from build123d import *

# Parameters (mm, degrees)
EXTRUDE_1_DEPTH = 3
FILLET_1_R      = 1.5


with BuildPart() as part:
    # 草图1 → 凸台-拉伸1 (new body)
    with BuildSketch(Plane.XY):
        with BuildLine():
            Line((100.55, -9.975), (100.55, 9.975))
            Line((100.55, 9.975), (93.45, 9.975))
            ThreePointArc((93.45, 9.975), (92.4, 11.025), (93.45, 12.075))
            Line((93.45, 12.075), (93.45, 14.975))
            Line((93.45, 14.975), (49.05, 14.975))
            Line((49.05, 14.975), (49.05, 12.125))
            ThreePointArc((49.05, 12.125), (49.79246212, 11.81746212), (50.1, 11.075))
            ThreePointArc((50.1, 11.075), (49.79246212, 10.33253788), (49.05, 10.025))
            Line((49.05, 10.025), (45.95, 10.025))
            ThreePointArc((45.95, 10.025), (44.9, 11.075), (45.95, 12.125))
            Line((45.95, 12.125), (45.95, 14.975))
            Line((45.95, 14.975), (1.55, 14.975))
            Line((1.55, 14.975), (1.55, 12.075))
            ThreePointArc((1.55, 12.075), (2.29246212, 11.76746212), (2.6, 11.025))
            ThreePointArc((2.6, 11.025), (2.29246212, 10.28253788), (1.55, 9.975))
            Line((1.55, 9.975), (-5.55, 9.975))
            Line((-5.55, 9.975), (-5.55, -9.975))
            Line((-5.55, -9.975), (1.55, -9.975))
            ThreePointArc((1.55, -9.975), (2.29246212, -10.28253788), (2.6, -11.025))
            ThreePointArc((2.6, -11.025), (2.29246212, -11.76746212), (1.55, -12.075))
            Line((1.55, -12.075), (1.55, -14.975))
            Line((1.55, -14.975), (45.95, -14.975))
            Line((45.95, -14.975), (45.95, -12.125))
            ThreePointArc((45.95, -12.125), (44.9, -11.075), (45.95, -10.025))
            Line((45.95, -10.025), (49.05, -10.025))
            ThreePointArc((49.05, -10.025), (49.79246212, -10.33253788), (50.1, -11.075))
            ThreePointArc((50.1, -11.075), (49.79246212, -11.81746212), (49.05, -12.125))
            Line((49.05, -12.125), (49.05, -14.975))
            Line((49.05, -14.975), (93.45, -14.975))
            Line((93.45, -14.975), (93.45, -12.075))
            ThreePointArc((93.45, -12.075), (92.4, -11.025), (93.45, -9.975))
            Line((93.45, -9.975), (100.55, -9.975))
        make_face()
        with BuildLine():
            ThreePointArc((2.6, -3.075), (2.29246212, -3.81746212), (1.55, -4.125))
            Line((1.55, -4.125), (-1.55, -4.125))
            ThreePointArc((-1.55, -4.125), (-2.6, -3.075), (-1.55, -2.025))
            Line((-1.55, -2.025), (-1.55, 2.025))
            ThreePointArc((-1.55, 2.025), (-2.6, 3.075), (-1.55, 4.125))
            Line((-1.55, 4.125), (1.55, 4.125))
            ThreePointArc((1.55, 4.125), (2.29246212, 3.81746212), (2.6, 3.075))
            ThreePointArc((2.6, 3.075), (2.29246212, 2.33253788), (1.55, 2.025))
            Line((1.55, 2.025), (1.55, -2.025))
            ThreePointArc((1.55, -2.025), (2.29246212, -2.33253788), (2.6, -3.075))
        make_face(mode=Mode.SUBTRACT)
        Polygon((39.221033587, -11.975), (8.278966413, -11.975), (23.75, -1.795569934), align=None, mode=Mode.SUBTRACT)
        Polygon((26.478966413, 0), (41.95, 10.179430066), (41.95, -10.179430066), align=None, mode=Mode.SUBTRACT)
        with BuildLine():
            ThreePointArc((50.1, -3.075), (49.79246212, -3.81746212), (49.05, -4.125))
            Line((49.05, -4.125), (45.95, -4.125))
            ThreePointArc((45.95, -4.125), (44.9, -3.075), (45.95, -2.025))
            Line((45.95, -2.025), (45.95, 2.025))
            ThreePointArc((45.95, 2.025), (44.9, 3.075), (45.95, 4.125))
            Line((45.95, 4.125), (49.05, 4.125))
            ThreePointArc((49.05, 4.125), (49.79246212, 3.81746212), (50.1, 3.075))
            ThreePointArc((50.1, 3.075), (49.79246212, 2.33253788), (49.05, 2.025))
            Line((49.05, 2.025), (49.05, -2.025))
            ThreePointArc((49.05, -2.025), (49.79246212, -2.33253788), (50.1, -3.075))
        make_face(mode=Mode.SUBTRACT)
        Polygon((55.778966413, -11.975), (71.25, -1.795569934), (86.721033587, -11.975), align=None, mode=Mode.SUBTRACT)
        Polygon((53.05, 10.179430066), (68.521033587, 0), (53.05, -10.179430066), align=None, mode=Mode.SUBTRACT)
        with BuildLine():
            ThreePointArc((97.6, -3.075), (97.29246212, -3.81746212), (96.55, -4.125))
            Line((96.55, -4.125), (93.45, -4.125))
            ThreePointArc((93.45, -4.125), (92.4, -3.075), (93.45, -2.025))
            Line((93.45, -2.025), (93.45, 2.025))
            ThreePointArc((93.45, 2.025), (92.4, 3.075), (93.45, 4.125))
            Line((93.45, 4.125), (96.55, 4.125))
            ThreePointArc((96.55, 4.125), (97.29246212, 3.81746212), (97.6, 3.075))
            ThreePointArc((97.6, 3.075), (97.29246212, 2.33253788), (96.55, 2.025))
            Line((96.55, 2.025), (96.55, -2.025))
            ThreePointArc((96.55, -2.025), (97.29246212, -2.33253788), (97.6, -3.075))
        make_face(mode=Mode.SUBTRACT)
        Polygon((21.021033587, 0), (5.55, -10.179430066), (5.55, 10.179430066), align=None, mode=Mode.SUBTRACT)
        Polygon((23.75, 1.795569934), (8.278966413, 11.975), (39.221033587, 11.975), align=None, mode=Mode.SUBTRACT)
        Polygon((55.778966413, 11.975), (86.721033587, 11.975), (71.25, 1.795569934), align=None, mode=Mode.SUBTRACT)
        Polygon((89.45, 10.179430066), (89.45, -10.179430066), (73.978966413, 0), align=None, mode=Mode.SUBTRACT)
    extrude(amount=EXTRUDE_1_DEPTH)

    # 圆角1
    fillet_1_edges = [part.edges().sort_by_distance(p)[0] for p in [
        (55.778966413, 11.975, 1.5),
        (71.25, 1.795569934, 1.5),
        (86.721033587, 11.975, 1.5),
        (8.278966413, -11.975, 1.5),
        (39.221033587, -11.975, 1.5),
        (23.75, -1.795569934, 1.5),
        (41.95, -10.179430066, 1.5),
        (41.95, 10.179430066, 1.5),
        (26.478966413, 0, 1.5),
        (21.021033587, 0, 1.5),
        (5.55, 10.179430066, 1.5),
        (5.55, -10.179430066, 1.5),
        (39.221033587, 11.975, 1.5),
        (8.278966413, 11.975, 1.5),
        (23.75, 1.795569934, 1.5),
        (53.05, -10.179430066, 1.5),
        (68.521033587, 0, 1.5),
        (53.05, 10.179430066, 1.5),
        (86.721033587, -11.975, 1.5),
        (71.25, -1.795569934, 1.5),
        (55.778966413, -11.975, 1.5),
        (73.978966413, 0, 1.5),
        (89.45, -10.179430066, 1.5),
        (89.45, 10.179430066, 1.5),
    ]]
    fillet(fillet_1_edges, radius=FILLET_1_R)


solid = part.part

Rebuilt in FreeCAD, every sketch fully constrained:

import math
import FreeCAD as App
import Part
import Sketcher
from FreeCAD import Vector


def edges_at(feature, points):
    """Names of the edges that pass closest to the given points."""
    edges = feature.Shape.Edges
    near = lambda p: min(range(len(edges)), key=lambda i: edges[i].distToShape(Part.Vertex(*p))[0])
    return sorted({f"Edge{near(p) + 1}" for p in points})

doc = App.newDocument("Part")
body = doc.addObject("PartDesign::Body", "Body")

sketch1 = body.newObject("Sketcher::SketchObject", "Sketch")
sketch1.AttachmentSupport = (doc.getObject("XY_Plane"), [""])
sketch1.MapMode = "FlatFace"
sketch1.addGeometry(Part.LineSegment(Vector(100.5, -10, 0), Vector(100.5, 10, 0)), False)
sketch1.addGeometry(Part.LineSegment(Vector(100.5, 10, 0), Vector(93.5, 10, 0)), False)
sketch1.addGeometry(Part.ArcOfCircle(Part.Circle(Vector(93.5, 11, 0), Vector(0, 0, 1), 1.1), math.radians(90), math.radians(270)), False)
sketch1.addGeometry(Part.LineSegment(Vector(93.5, 12.1, 0), Vector(93.5, 15, 0)), False)
sketch1.addGeometry(Part.LineSegment(Vector(93.5, 15, 0), Vector(49, 15, 0)), False)
sketch1.addGeometry(Part.LineSegment(Vector(49, 15, 0), Vector(49, 12.1, 0)), False)
sketch1.addGeometry(Part.ArcOfCircle(Part.Circle(Vector(49, 11.1, 0), Vector(0, 0, 1), 1.1), math.radians(0), math.radians(90)), False)
sketch1.addGeometry(Part.ArcOfCircle(Part.Circle(Vector(49, 11.1, 0), Vector(0, 0, 1), 1.1), math.radians(-90), math.radians(0)), False)
sketch1.addGeometry(Part.LineSegment(Vector(49, 10, 0), Vector(46, 10, 0)), False)
sketch1.addGeometry(Part.ArcOfCircle(Part.Circle(Vector(46, 11.1, 0), Vector(0, 0, 1), 1.1), math.radians(90), math.radians(270)), False)
sketch1.addGeometry(Part.LineSegment(Vector(46, 12.1, 0), Vector(46, 15, 0)), False)
sketch1.addGeometry(Part.LineSegment(Vector(46, 15, 0), Vector(1.6, 15, 0)), False)
sketch1.addGeometry(Part.LineSegment(Vector(1.6, 15, 0), Vector(1.6, 12.1, 0)), False)
sketch1.addGeometry(Part.ArcOfCircle(Part.Circle(Vector(1.5, 11, 0), Vector(0, 0, 1), 1.1), math.radians(0), math.radians(90)), False)
sketch1.addGeometry(Part.ArcOfCircle(Part.Circle(Vector(1.5, 11, 0), Vector(0, 0, 1), 1.1), math.radians(-90), math.radians(0)), False)
sketch1.addGeometry(Part.LineSegment(Vector(1.6, 10, 0), Vector(-5.5, 10, 0)), False)
sketch1.addGeometry(Part.LineSegment(Vector(-5.5, 10, 0), Vector(-5.5, -10, 0)), False)
sketch1.addGeometry(Part.LineSegment(Vector(-5.5, -10, 0), Vector(1.6, -10, 0)), False)
sketch1.addGeometry(Part.ArcOfCircle(Part.Circle(Vector(1.5, -11, 0), Vector(0, 0, 1), 1.1), math.radians(0), math.radians(90)), False)
sketch1.addGeometry(Part.ArcOfCircle(Part.Circle(Vector(1.5, -11, 0), Vector(0, 0, 1), 1.1), math.radians(-90), math.radians(0)), False)
sketch1.addGeometry(Part.LineSegment(Vector(1.6, -12.1, 0), Vector(1.6, -15, 0)), False)
sketch1.addGeometry(Part.LineSegment(Vector(1.6, -15, 0), Vector(46, -15, 0)), False)
sketch1.addGeometry(Part.LineSegment(Vector(46, -15, 0), Vector(46, -12.1, 0)), False)
sketch1.addGeometry(Part.ArcOfCircle(Part.Circle(Vector(46, -11.1, 0), Vector(0, 0, 1), 1.1), math.radians(90), math.radians(270)), False)
sketch1.addGeometry(Part.LineSegment(Vector(46, -10, 0), Vector(49, -10, 0)), False)
sketch1.addGeometry(Part.ArcOfCircle(Part.Circle(Vector(49, -11.1, 0), Vector(0, 0, 1), 1.1), math.radians(0), math.radians(90)), False)
sketch1.addGeometry(Part.ArcOfCircle(Part.Circle(Vector(49, -11.1, 0), Vector(0, 0, 1), 1.1), math.radians(-90), math.radians(0)), False)
sketch1.addGeometry(Part.LineSegment(Vector(49, -12.1, 0), Vector(49, -15, 0)), False)
sketch1.addGeometry(Part.LineSegment(Vector(49, -15, 0), Vector(93.5, -15, 0)), False)
sketch1.addGeometry(Part.LineSegment(Vector(93.5, -15, 0), Vector(93.5, -12.1, 0)), False)
sketch1.addGeometry(Part.ArcOfCircle(Part.Circle(Vector(93.5, -11, 0), Vector(0, 0, 1), 1.1), math.radians(90), math.radians(270)), False)
sketch1.addGeometry(Part.LineSegment(Vector(93.5, -10, 0), Vector(100.5, -10, 0)), False)
sketch1.addGeometry(Part.LineSegment(Vector(23.8, -1.8, 0), Vector(39.2, -12, 0)), False)
sketch1.addGeometry(Part.LineSegment(Vector(39.2, -12, 0), Vector(8.3, -12, 0)), False)
sketch1.addGeometry(Part.LineSegment(Vector(8.3, -12, 0), Vector(23.8, -1.8, 0)), False)
sketch1.addGeometry(Part.ArcOfCircle(Part.Circle(Vector(1.5, -3.1, 0), Vector(0, 0, 1), 1.1), math.radians(0), math.radians(90)), False)
sketch1.addGeometry(Part.ArcOfCircle(Part.Circle(Vector(1.5, -3.1, 0), Vector(0, 0, 1), 1.1), math.radians(-90), math.radians(0)), False)
sketch1.addGeometry(Part.LineSegment(Vector(1.6, -4.1, 0), Vector(-1.6, -4.1, 0)), False)
sketch1.addGeometry(Part.ArcOfCircle(Part.Circle(Vector(-1.6, -3.1, 0), Vector(0, 0, 1), 1.1), math.radians(90), math.radians(270)), False)
sketch1.addGeometry(Part.LineSegment(Vector(-1.6, -2, 0), Vector(-1.6, 2, 0)), False)
sketch1.addGeometry(Part.ArcOfCircle(Part.Circle(Vector(-1.6, 3.1, 0), Vector(0, 0, 1), 1.1), math.radians(90), math.radians(270)), False)
sketch1.addGeometry(Part.LineSegment(Vector(-1.6, 4.1, 0), Vector(1.6, 4.1, 0)), False)
sketch1.addGeometry(Part.ArcOfCircle(Part.Circle(Vector(1.5, 3.1, 0), Vector(0, 0, 1), 1.1), math.radians(0), math.radians(90)), False)
sketch1.addGeometry(Part.ArcOfCircle(Part.Circle(Vector(1.5, 3.1, 0), Vector(0, 0, 1), 1.1), math.radians(-90), math.radians(0)), False)
sketch1.addGeometry(Part.LineSegment(Vector(1.6, 2, 0), Vector(1.6, -2, 0)), False)
sketch1.addGeometry(Part.LineSegment(Vector(5.5, 10.2, 0), Vector(21, 0, 0)), False)
sketch1.addGeometry(Part.LineSegment(Vector(21, 0, 0), Vector(5.5, -10.2, 0)), False)
sketch1.addGeometry(Part.LineSegment(Vector(5.5, -10.2, 0), Vector(5.5, 10.2, 0)), False)
sketch1.addGeometry(Part.LineSegment(Vector(42, -10.2, 0), Vector(26.5, 0, 0)), False)
sketch1.addGeometry(Part.LineSegment(Vector(26.5, 0, 0), Vector(42, 10.2, 0)), False)
sketch1.addGeometry(Part.LineSegment(Vector(42, 10.2, 0), Vector(42, -10.2, 0)), False)
sketch1.addGeometry(Part.LineSegment(Vector(86.7, -12, 0), Vector(55.8, -12, 0)), False)
sketch1.addGeometry(Part.LineSegment(Vector(55.8, -12, 0), Vector(71.2, -1.8, 0)), False)
sketch1.addGeometry(Part.LineSegment(Vector(71.2, -1.8, 0), Vector(86.7, -12, 0)), False)
sketch1.addGeometry(Part.ArcOfCircle(Part.Circle(Vector(49, -3.1, 0), Vector(0, 0, 1), 1.1), math.radians(0), math.radians(90)), False)
sketch1.addGeometry(Part.ArcOfCircle(Part.Circle(Vector(49, -3.1, 0), Vector(0, 0, 1), 1.1), math.radians(-90), math.radians(0)), False)
sketch1.addGeometry(Part.LineSegment(Vector(49, -4.1, 0), Vector(46, -4.1, 0)), False)
sketch1.addGeometry(Part.ArcOfCircle(Part.Circle(Vector(46, -3.1, 0), Vector(0, 0, 1), 1.1), math.radians(90), math.radians(270)), False)
sketch1.addGeometry(Part.LineSegment(Vector(46, -2, 0), Vector(46, 2, 0)), False)
sketch1.addGeometry(Part.ArcOfCircle(Part.Circle(Vector(46, 3.1, 0), Vector(0, 0, 1), 1.1), math.radians(90), math.radians(270)), False)
sketch1.addGeometry(Part.LineSegment(Vector(46, 4.1, 0), Vector(49, 4.1, 0)), False)
sketch1.addGeometry(Part.ArcOfCircle(Part.Circle(Vector(49, 3.1, 0), Vector(0, 0, 1), 1.1), math.radians(0), math.radians(90)), False)
sketch1.addGeometry(Part.ArcOfCircle(Part.Circle(Vector(49, 3.1, 0), Vector(0, 0, 1), 1.1), math.radians(-90), math.radians(0)), False)
sketch1.addGeometry(Part.LineSegment(Vector(49, 2, 0), Vector(49, -2, 0)), False)
sketch1.addGeometry(Part.LineSegment(Vector(53, -10.2, 0), Vector(53, 10.2, 0)), False)
sketch1.addGeometry(Part.LineSegment(Vector(53, 10.2, 0), Vector(68.5, 0, 0)), False)
sketch1.addGeometry(Part.LineSegment(Vector(68.5, 0, 0), Vector(53, -10.2, 0)), False)
sketch1.addGeometry(Part.LineSegment(Vector(74, 0, 0), Vector(89.5, 10.2, 0)), False)
sketch1.addGeometry(Part.LineSegment(Vector(89.5, 10.2, 0), Vector(89.5, -10.2, 0)), False)
sketch1.addGeometry(Part.LineSegment(Vector(89.5, -10.2, 0), Vector(74, 0, 0)), False)
sketch1.addGeometry(Part.ArcOfCircle(Part.Circle(Vector(96.5, -3.1, 0), Vector(0, 0, 1), 1.1), math.radians(0), math.radians(90)), False)
sketch1.addGeometry(Part.ArcOfCircle(Part.Circle(Vector(96.5, -3.1, 0), Vector(0, 0, 1), 1.1), math.radians(-90), math.radians(0)), False)
sketch1.addGeometry(Part.LineSegment(Vector(96.5, -4.1, 0), Vector(93.5, -4.1, 0)), False)
sketch1.addGeometry(Part.ArcOfCircle(Part.Circle(Vector(93.5, -3.1, 0), Vector(0, 0, 1), 1.1), math.radians(90), math.radians(270)), False)
sketch1.addGeometry(Part.LineSegment(Vector(93.5, -2, 0), Vector(93.5, 2, 0)), False)
sketch1.addGeometry(Part.ArcOfCircle(Part.Circle(Vector(93.5, 3.1, 0), Vector(0, 0, 1), 1.1), math.radians(90), math.radians(270)), False)
sketch1.addGeometry(Part.LineSegment(Vector(93.5, 4.1, 0), Vector(96.5, 4.1, 0)), False)
sketch1.addGeometry(Part.ArcOfCircle(Part.Circle(Vector(96.5, 3.1, 0), Vector(0, 0, 1), 1.1), math.radians(0), math.radians(90)), False)
sketch1.addGeometry(Part.ArcOfCircle(Part.Circle(Vector(96.5, 3.1, 0), Vector(0, 0, 1), 1.1), math.radians(-90), math.radians(0)), False)
sketch1.addGeometry(Part.LineSegment(Vector(96.5, 2, 0), Vector(96.5, -2, 0)), False)
sketch1.addGeometry(Part.LineSegment(Vector(39.2, 12, 0), Vector(23.8, 1.8, 0)), False)
sketch1.addGeometry(Part.LineSegment(Vector(23.8, 1.8, 0), Vector(8.3, 12, 0)), False)
sketch1.addGeometry(Part.LineSegment(Vector(8.3, 12, 0), Vector(39.2, 12, 0)), False)
sketch1.addGeometry(Part.LineSegment(Vector(71.2, 1.8, 0), Vector(55.8, 12, 0)), False)
sketch1.addGeometry(Part.LineSegment(Vector(55.8, 12, 0), Vector(86.7, 12, 0)), False)
sketch1.addGeometry(Part.LineSegment(Vector(86.7, 12, 0), Vector(71.2, 1.8, 0)), False)
sketch1.addConstraint(Sketcher.Constraint("Coincident", 0, 2, 1, 1))
sketch1.addConstraint(Sketcher.Constraint("Tangent", 1, 2, 2, 2))
sketch1.addConstraint(Sketcher.Constraint("Coincident", 2, 1, 3, 1))
sketch1.addConstraint(Sketcher.Constraint("Coincident", 3, 2, 4, 1))
sketch1.addConstraint(Sketcher.Constraint("Coincident", 4, 2, 5, 1))
sketch1.addConstraint(Sketcher.Constraint("Coincident", 5, 2, 6, 2))
sketch1.addConstraint(Sketcher.Constraint("Tangent", 6, 1, 7, 2))
sketch1.addConstraint(Sketcher.Constraint("Tangent", 7, 1, 8, 1))
sketch1.addConstraint(Sketcher.Constraint("Tangent", 8, 2, 9, 2))
sketch1.addConstraint(Sketcher.Constraint("Coincident", 9, 1, 10, 1))
sketch1.addConstraint(Sketcher.Constraint("Coincident", 10, 2, 11, 1))
sketch1.addConstraint(Sketcher.Constraint("Coincident", 11, 2, 12, 1))
sketch1.addConstraint(Sketcher.Constraint("Coincident", 12, 2, 13, 2))
sketch1.addConstraint(Sketcher.Constraint("Tangent", 13, 1, 14, 2))
sketch1.addConstraint(Sketcher.Constraint("Tangent", 14, 1, 15, 1))
sketch1.addConstraint(Sketcher.Constraint("Coincident", 15, 2, 16, 1))
sketch1.addConstraint(Sketcher.Constraint("Coincident", 16, 2, 17, 1))
sketch1.addConstraint(Sketcher.Constraint("Tangent", 17, 2, 18, 2))
sketch1.addConstraint(Sketcher.Constraint("Tangent", 18, 1, 19, 2))
sketch1.addConstraint(Sketcher.Constraint("Coincident", 19, 1, 20, 1))
sketch1.addConstraint(Sketcher.Constraint("Coincident", 20, 2, 21, 1))
sketch1.addConstraint(Sketcher.Constraint("Coincident", 21, 2, 22, 1))
sketch1.addConstraint(Sketcher.Constraint("Coincident", 22, 2, 23, 2))
sketch1.addConstraint(Sketcher.Constraint("Tangent", 23, 1, 24, 1))
sketch1.addConstraint(Sketcher.Constraint("Tangent", 24, 2, 25, 2))
sketch1.addConstraint(Sketcher.Constraint("Tangent", 25, 1, 26, 2))
sketch1.addConstraint(Sketcher.Constraint("Coincident", 26, 1, 27, 1))
sketch1.addConstraint(Sketcher.Constraint("Coincident", 27, 2, 28, 1))
sketch1.addConstraint(Sketcher.Constraint("Coincident", 28, 2, 29, 1))
sketch1.addConstraint(Sketcher.Constraint("Coincident", 29, 2, 30, 2))
sketch1.addConstraint(Sketcher.Constraint("Tangent", 30, 1, 31, 1))
sketch1.addConstraint(Sketcher.Constraint("Coincident", 31, 2, 0, 1))
sketch1.addConstraint(Sketcher.Constraint("Coincident", 32, 2, 33, 1))
sketch1.addConstraint(Sketcher.Constraint("Coincident", 33, 2, 34, 1))
sketch1.addConstraint(Sketcher.Constraint("Coincident", 34, 2, 32, 1))
sketch1.addConstraint(Sketcher.Constraint("Tangent", 35, 1, 36, 2))
sketch1.addConstraint(Sketcher.Constraint("Tangent", 36, 1, 37, 1))
sketch1.addConstraint(Sketcher.Constraint("Tangent", 37, 2, 38, 2))
sketch1.addConstraint(Sketcher.Constraint("Coincident", 38, 1, 39, 1))
sketch1.addConstraint(Sketcher.Constraint("Coincident", 39, 2, 40, 2))
sketch1.addConstraint(Sketcher.Constraint("Tangent", 40, 1, 41, 1))
sketch1.addConstraint(Sketcher.Constraint("Tangent", 41, 2, 42, 2))
sketch1.addConstraint(Sketcher.Constraint("Tangent", 42, 1, 43, 2))
sketch1.addConstraint(Sketcher.Constraint("Coincident", 43, 1, 44, 1))
sketch1.addConstraint(Sketcher.Constraint("Coincident", 44, 2, 35, 2))
sketch1.addConstraint(Sketcher.Constraint("Coincident", 45, 2, 46, 1))
sketch1.addConstraint(Sketcher.Constraint("Coincident", 46, 2, 47, 1))
sketch1.addConstraint(Sketcher.Constraint("Coincident", 47, 2, 45, 1))
sketch1.addConstraint(Sketcher.Constraint("Coincident", 48, 2, 49, 1))
sketch1.addConstraint(Sketcher.Constraint("Coincident", 49, 2, 50, 1))
sketch1.addConstraint(Sketcher.Constraint("Coincident", 50, 2, 48, 1))
sketch1.addConstraint(Sketcher.Constraint("Coincident", 51, 2, 52, 1))
sketch1.addConstraint(Sketcher.Constraint("Coincident", 52, 2, 53, 1))
sketch1.addConstraint(Sketcher.Constraint("Coincident", 53, 2, 51, 1))
sketch1.addConstraint(Sketcher.Constraint("Tangent", 54, 1, 55, 2))
sketch1.addConstraint(Sketcher.Constraint("Tangent", 55, 1, 56, 1))
sketch1.addConstraint(Sketcher.Constraint("Tangent", 56, 2, 57, 2))
sketch1.addConstraint(Sketcher.Constraint("Coincident", 57, 1, 58, 1))
sketch1.addConstraint(Sketcher.Constraint("Coincident", 58, 2, 59, 2))
sketch1.addConstraint(Sketcher.Constraint("Tangent", 59, 1, 60, 1))
sketch1.addConstraint(Sketcher.Constraint("Tangent", 60, 2, 61, 2))
sketch1.addConstraint(Sketcher.Constraint("Tangent", 61, 1, 62, 2))
sketch1.addConstraint(Sketcher.Constraint("Coincident", 62, 1, 63, 1))
sketch1.addConstraint(Sketcher.Constraint("Coincident", 63, 2, 54, 2))
sketch1.addConstraint(Sketcher.Constraint("Coincident", 64, 2, 65, 1))
sketch1.addConstraint(Sketcher.Constraint("Coincident", 65, 2, 66, 1))
sketch1.addConstraint(Sketcher.Constraint("Coincident", 66, 2, 64, 1))
sketch1.addConstraint(Sketcher.Constraint("Coincident", 67, 2, 68, 1))
sketch1.addConstraint(Sketcher.Constraint("Coincident", 68, 2, 69, 1))
sketch1.addConstraint(Sketcher.Constraint("Coincident", 69, 2, 67, 1))
sketch1.addConstraint(Sketcher.Constraint("Tangent", 70, 1, 71, 2))
sketch1.addConstraint(Sketcher.Constraint("Tangent", 71, 1, 72, 1))
sketch1.addConstraint(Sketcher.Constraint("Tangent", 72, 2, 73, 2))
sketch1.addConstraint(Sketcher.Constraint("Coincident", 73, 1, 74, 1))
sketch1.addConstraint(Sketcher.Constraint("Coincident", 74, 2, 75, 2))
sketch1.addConstraint(Sketcher.Constraint("Tangent", 75, 1, 76, 1))
sketch1.addConstraint(Sketcher.Constraint("Tangent", 76, 2, 77, 2))
sketch1.addConstraint(Sketcher.Constraint("Tangent", 77, 1, 78, 2))
sketch1.addConstraint(Sketcher.Constraint("Coincident", 78, 1, 79, 1))
sketch1.addConstraint(Sketcher.Constraint("Coincident", 79, 2, 70, 2))
sketch1.addConstraint(Sketcher.Constraint("Coincident", 80, 2, 81, 1))
sketch1.addConstraint(Sketcher.Constraint("Coincident", 81, 2, 82, 1))
sketch1.addConstraint(Sketcher.Constraint("Coincident", 82, 2, 80, 1))
sketch1.addConstraint(Sketcher.Constraint("Coincident", 83, 2, 84, 1))
sketch1.addConstraint(Sketcher.Constraint("Coincident", 84, 2, 85, 1))
sketch1.addConstraint(Sketcher.Constraint("Coincident", 85, 2, 83, 1))
sketch1.addConstraint(Sketcher.Constraint("Vertical", 0))
sketch1.addConstraint(Sketcher.Constraint("Horizontal", 1))
sketch1.addConstraint(Sketcher.Constraint("Vertical", 3))
sketch1.addConstraint(Sketcher.Constraint("Horizontal", 4))
sketch1.addConstraint(Sketcher.Constraint("Vertical", 5))
sketch1.addConstraint(Sketcher.Constraint("Horizontal", 8))
sketch1.addConstraint(Sketcher.Constraint("Vertical", 10))
sketch1.addConstraint(Sketcher.Constraint("Horizontal", 11))
sketch1.addConstraint(Sketcher.Constraint("Vertical", 12))
sketch1.addConstraint(Sketcher.Constraint("Horizontal", 15))
sketch1.addConstraint(Sketcher.Constraint("Vertical", 16))
sketch1.addConstraint(Sketcher.Constraint("Horizontal", 17))
sketch1.addConstraint(Sketcher.Constraint("Vertical", 20))
sketch1.addConstraint(Sketcher.Constraint("Horizontal", 21))
sketch1.addConstraint(Sketcher.Constraint("Vertical", 22))
sketch1.addConstraint(Sketcher.Constraint("Horizontal", 24))
sketch1.addConstraint(Sketcher.Constraint("Vertical", 27))
sketch1.addConstraint(Sketcher.Constraint("Horizontal", 28))
sketch1.addConstraint(Sketcher.Constraint("Vertical", 29))
sketch1.addConstraint(Sketcher.Constraint("Horizontal", 31))
sketch1.addConstraint(Sketcher.Constraint("Horizontal", 33))
sketch1.addConstraint(Sketcher.Constraint("Horizontal", 37))
sketch1.addConstraint(Sketcher.Constraint("Vertical", 39))
sketch1.addConstraint(Sketcher.Constraint("Horizontal", 41))
sketch1.addConstraint(Sketcher.Constraint("Vertical", 44))
sketch1.addConstraint(Sketcher.Constraint("Vertical", 47))
sketch1.addConstraint(Sketcher.Constraint("Vertical", 50))
sketch1.addConstraint(Sketcher.Constraint("Horizontal", 51))
sketch1.addConstraint(Sketcher.Constraint("Horizontal", 56))
sketch1.addConstraint(Sketcher.Constraint("Vertical", 58))
sketch1.addConstraint(Sketcher.Constraint("Horizontal", 60))
sketch1.addConstraint(Sketcher.Constraint("Vertical", 63))
sketch1.addConstraint(Sketcher.Constraint("Vertical", 64))
sketch1.addConstraint(Sketcher.Constraint("Vertical", 68))
sketch1.addConstraint(Sketcher.Constraint("Horizontal", 72))
sketch1.addConstraint(Sketcher.Constraint("Vertical", 74))
sketch1.addConstraint(Sketcher.Constraint("Horizontal", 76))
sketch1.addConstraint(Sketcher.Constraint("Vertical", 79))
sketch1.addConstraint(Sketcher.Constraint("Horizontal", 82))
sketch1.addConstraint(Sketcher.Constraint("Horizontal", 84))
sketch1.addConstraint(Sketcher.Constraint("Equal", 2, 6))
sketch1.addConstraint(Sketcher.Constraint("Equal", 6, 7))
sketch1.addConstraint(Sketcher.Constraint("Equal", 7, 9))
sketch1.addConstraint(Sketcher.Constraint("Equal", 9, 13))
sketch1.addConstraint(Sketcher.Constraint("Equal", 13, 14))
sketch1.addConstraint(Sketcher.Constraint("Equal", 14, 18))
sketch1.addConstraint(Sketcher.Constraint("Equal", 18, 19))
sketch1.addConstraint(Sketcher.Constraint("Equal", 19, 23))
sketch1.addConstraint(Sketcher.Constraint("Equal", 23, 25))
sketch1.addConstraint(Sketcher.Constraint("Equal", 25, 26))
sketch1.addConstraint(Sketcher.Constraint("Equal", 26, 30))
sketch1.addConstraint(Sketcher.Constraint("Equal", 30, 35))
sketch1.addConstraint(Sketcher.Constraint("Equal", 35, 36))
sketch1.addConstraint(Sketcher.Constraint("Equal", 36, 38))
sketch1.addConstraint(Sketcher.Constraint("Equal", 38, 40))
sketch1.addConstraint(Sketcher.Constraint("Equal", 40, 42))
sketch1.addConstraint(Sketcher.Constraint("Equal", 42, 43))
sketch1.addConstraint(Sketcher.Constraint("Equal", 43, 54))
sketch1.addConstraint(Sketcher.Constraint("Equal", 54, 55))
sketch1.addConstraint(Sketcher.Constraint("Equal", 55, 57))
sketch1.addConstraint(Sketcher.Constraint("Equal", 57, 59))
sketch1.addConstraint(Sketcher.Constraint("Equal", 59, 61))
sketch1.addConstraint(Sketcher.Constraint("Equal", 61, 62))
sketch1.addConstraint(Sketcher.Constraint("Equal", 62, 70))
sketch1.addConstraint(Sketcher.Constraint("Equal", 70, 71))
sketch1.addConstraint(Sketcher.Constraint("Equal", 71, 73))
sketch1.addConstraint(Sketcher.Constraint("Equal", 73, 75))
sketch1.addConstraint(Sketcher.Constraint("Equal", 75, 77))
sketch1.addConstraint(Sketcher.Constraint("Equal", 77, 78))
sketch1.addConstraint(Sketcher.Constraint("Symmetric", 35, 3, 40, 3, -1, 1))
sketch1.addConstraint(Sketcher.Constraint("Symmetric", 13, 3, 18, 3, -1))
sketch1.addConstraint(Sketcher.Constraint("Symmetric", 9, 3, 23, 3, -1))
sketch1.addConstraint(Sketcher.Constraint("Symmetric", 2, 3, 30, 3, -1))
sketch1.addConstraint(Sketcher.Constraint("Symmetric", 57, 3, 59, 3, -1))
sketch1.addConstraint(Sketcher.Constraint("Symmetric", 73, 3, 75, 3, -1))
sketch1.addConstraint(Sketcher.Constraint("Symmetric", 11, 2, 20, 2, -1))
sketch1.addConstraint(Sketcher.Constraint("Symmetric", 6, 1, 25, 1, -1))
sketch1.addConstraint(Sketcher.Constraint("Symmetric", 4, 2, 27, 2, -1))
sketch1.addConstraint(Sketcher.Constraint("Symmetric", 35, 1, 42, 1, -1))
sketch1.addConstraint(Sketcher.Constraint("Symmetric", 54, 1, 61, 1, -1))
sketch1.addConstraint(Sketcher.Constraint("Symmetric", 70, 1, 77, 1, -1))
sketch1.addConstraint(Sketcher.Constraint("Symmetric", 34, 2, 80, 2, -1))
sketch1.addConstraint(Sketcher.Constraint("Symmetric", 33, 2, 81, 2, -1))
sketch1.addConstraint(Sketcher.Constraint("Symmetric", 51, 2, 83, 2, -1))
sketch1.addConstraint(Sketcher.Constraint("Symmetric", 52, 2, 85, 2, -1))
sketch1.addConstraint(Sketcher.Constraint("PointOnObject", 45, 2, -1))
sketch1.addConstraint(Sketcher.Constraint("PointOnObject", 48, 2, -1))
sketch1.addConstraint(Sketcher.Constraint("PointOnObject", 65, 2, -1))
sketch1.addConstraint(Sketcher.Constraint("PointOnObject", 69, 2, -1))
sketch1.addConstraint(Sketcher.Constraint("Parallel", 32, 45))
sketch1.addConstraint(Sketcher.Constraint("Parallel", 34, 46))
sketch1.addConstraint(Sketcher.Constraint("Parallel", 45, 48))
sketch1.addConstraint(Sketcher.Constraint("Parallel", 46, 49))
sketch1.addConstraint(Sketcher.Constraint("Parallel", 49, 52))
sketch1.addConstraint(Sketcher.Constraint("Parallel", 48, 53))
sketch1.addConstraint(Sketcher.Constraint("Parallel", 53, 65))
sketch1.addConstraint(Sketcher.Constraint("Parallel", 52, 66))
sketch1.addConstraint(Sketcher.Constraint("Parallel", 66, 67))
sketch1.addConstraint(Sketcher.Constraint("Parallel", 65, 69))
sketch1.addConstraint(Sketcher.Constraint("Parallel", 67, 80))
sketch1.addConstraint(Sketcher.Constraint("Parallel", 69, 81))
sketch1.addConstraint(Sketcher.Constraint("Parallel", 80, 85))
sketch1.addConstraint(Sketcher.Constraint("Horizontal", 2, 3, 13, 3))
sketch1.addConstraint(Sketcher.Constraint("Horizontal", 38, 3, 54, 3))
sketch1.addConstraint(Sketcher.Constraint("Horizontal", 57, 3, 70, 3))
sketch1.addConstraint(Sketcher.Constraint("Horizontal", 9, 3, 6, 1))
sketch1.addConstraint(Sketcher.Constraint("Horizontal", 4, 2, 10, 2))
sketch1.addConstraint(Sketcher.Constraint("Horizontal", 14, 3, 13, 1))
sketch1.addConstraint(Sketcher.Constraint("Horizontal", 30, 3, 18, 1))
sketch1.addConstraint(Sketcher.Constraint("Horizontal", 73, 3, 35, 1))
sketch1.addConstraint(Sketcher.Constraint("Horizontal", 47, 2, 49, 2))
sketch1.addConstraint(Sketcher.Constraint("Horizontal", 33, 2, 51, 2))
sketch1.addConstraint(Sketcher.Constraint("Horizontal", 34, 2, 52, 2))
sketch1.addConstraint(Sketcher.Constraint("Horizontal", 35, 1, 54, 1))
sketch1.addConstraint(Sketcher.Constraint("Horizontal", 49, 2, 64, 2))
sketch1.addConstraint(Sketcher.Constraint("Horizontal", 64, 2, 67, 2))
sketch1.addConstraint(Sketcher.Constraint("Horizontal", 54, 1, 70, 1))
sketch1.addConstraint(Sketcher.Constraint("Vertical", 19, 3, 35, 3))
sketch1.addConstraint(Sketcher.Constraint("Vertical", 38, 3, 40, 3))
sketch1.addConstraint(Sketcher.Constraint("Vertical", 26, 3, 54, 3))
sketch1.addConstraint(Sketcher.Constraint("Vertical", 23, 3, 57, 3))
sketch1.addConstraint(Sketcher.Constraint("Vertical", 30, 3, 73, 3))
sketch1.addConstraint(Sketcher.Constraint("Vertical", 1, 2, 2, 1))
sketch1.addConstraint(Sketcher.Constraint("Vertical", 62, 3, 4, 2))
sketch1.addConstraint(Sketcher.Constraint("Vertical", 8, 2, 9, 1))
sketch1.addConstraint(Sketcher.Constraint("Vertical", 43, 3, 11, 2))
sketch1.addConstraint(Sketcher.Constraint("Vertical", 10, 2, 21, 2))
sketch1.addConstraint(Sketcher.Constraint("Vertical", 3, 2, 28, 2))
sketch1.addConstraint(Sketcher.Constraint("Vertical", 37, 2, 38, 1))
sketch1.addConstraint(Sketcher.Constraint("Vertical", 41, 2, 43, 1))
sketch1.addConstraint(Sketcher.Constraint("Vertical", 56, 2, 57, 1))
sketch1.addConstraint(Sketcher.Constraint("Vertical", 60, 2, 62, 1))
sketch1.addConstraint(Sketcher.Constraint("Vertical", 72, 2, 73, 1))
sketch1.addConstraint(Sketcher.Constraint("Vertical", 76, 2, 78, 1))
sketch1.addConstraint(Sketcher.Constraint("Equal", 4, 11))
sketch1.addConstraint(Sketcher.Constraint("Equal", 1, 15))
sketch1.addConstraint(Sketcher.Constraint("Equal", 24, 37))
sketch1.addConstraint(Sketcher.Constraint("Equal", 60, 72))
sketch1.addConstraint(Sketcher.Constraint("Equal", 34, 45))
sketch1.addConstraint(Sketcher.Constraint("Radius", 2, 1.05))
sketch1.addConstraint(Sketcher.Constraint("DistanceX", 1, 2, 1, 1, 7.1))
sketch1.addConstraint(Sketcher.Constraint("DistanceX", 4, 2, 4, 1, 44.4))
sketch1.addConstraint(Sketcher.Constraint("DistanceX", 8, 2, 8, 1, 3.1))
sketch1.addConstraint(Sketcher.Constraint("DistanceY", 3, 1, 3, 2, 2.9))
sketch1.addConstraint(Sketcher.Constraint("DistanceY", 0, 1, 0, 2, 19.95))
sketch1.addConstraint(Sketcher.Constraint("DistanceY", 5, 2, 5, 1, 2.85))
sketch1.addConstraint(Sketcher.Constraint("DistanceY", 39, 1, 39, 2, 4.05))
sketch1.addConstraint(Sketcher.Constraint("DistanceX", -1, 1, 34, 2, 23.75))
sketch1.addConstraint(Sketcher.Constraint("DistanceX", -1, 1, 46, 2, 5.55))
sketch1.addConstraint(Sketcher.Constraint("DistanceX", -1, 1, 49, 2, 41.95))
sketch1.addConstraint(Sketcher.Constraint("DistanceX", -1, 1, 52, 2, 71.25))
sketch1.addConstraint(Sketcher.Constraint("DistanceX", -1, 1, 64, 2, 53.05))
sketch1.addConstraint(Sketcher.Constraint("DistanceX", -1, 1, 67, 2, 89.45))
sketch1.addConstraint(Sketcher.Constraint("DistanceY", 32, 2, -1, 1, 11.975))
sketch1.addConstraint(Sketcher.Constraint("DistanceY", 47, 1, 47, 2, 20.35886))
sketch1.addConstraint(Sketcher.Constraint("Distance", 32, 18.519549))
pad1 = body.newObject("PartDesign::Pad", "Pad")
pad1.Profile = sketch1
pad1.Length = 3
doc.recompute()

fillet = body.newObject("PartDesign::Fillet", "Fillet")
fillet.Base = (pad1, edges_at(pad1, [
    (55.779, 11.975, 1.5),
    (71.25, 1.796, 1.5),
    (86.721, 11.975, 1.5),
    (8.279, -11.975, 1.5),
    (39.221, -11.975, 1.5),
    (23.75, -1.796, 1.5),
    (41.95, -10.179, 1.5),
    (41.95, 10.179, 1.5),
    (26.479, 0, 1.5),
    (21.021, 0, 1.5),
    (5.55, 10.179, 1.5),
    (5.55, -10.179, 1.5),
    (39.221, 11.975, 1.5),
    (8.279, 11.975, 1.5),
    (23.75, 1.796, 1.5),
    (53.05, -10.179, 1.5),
    (68.521, 0, 1.5),
    (53.05, 10.179, 1.5),
    (86.721, -11.975, 1.5),
    (71.25, -1.796, 1.5),
    (55.779, -11.975, 1.5),
    (73.979, 0, 1.5),
    (89.45, -10.179, 1.5),
    (89.45, 10.179, 1.5),
]))
fillet.Radius = 1.5

doc.recompute()
